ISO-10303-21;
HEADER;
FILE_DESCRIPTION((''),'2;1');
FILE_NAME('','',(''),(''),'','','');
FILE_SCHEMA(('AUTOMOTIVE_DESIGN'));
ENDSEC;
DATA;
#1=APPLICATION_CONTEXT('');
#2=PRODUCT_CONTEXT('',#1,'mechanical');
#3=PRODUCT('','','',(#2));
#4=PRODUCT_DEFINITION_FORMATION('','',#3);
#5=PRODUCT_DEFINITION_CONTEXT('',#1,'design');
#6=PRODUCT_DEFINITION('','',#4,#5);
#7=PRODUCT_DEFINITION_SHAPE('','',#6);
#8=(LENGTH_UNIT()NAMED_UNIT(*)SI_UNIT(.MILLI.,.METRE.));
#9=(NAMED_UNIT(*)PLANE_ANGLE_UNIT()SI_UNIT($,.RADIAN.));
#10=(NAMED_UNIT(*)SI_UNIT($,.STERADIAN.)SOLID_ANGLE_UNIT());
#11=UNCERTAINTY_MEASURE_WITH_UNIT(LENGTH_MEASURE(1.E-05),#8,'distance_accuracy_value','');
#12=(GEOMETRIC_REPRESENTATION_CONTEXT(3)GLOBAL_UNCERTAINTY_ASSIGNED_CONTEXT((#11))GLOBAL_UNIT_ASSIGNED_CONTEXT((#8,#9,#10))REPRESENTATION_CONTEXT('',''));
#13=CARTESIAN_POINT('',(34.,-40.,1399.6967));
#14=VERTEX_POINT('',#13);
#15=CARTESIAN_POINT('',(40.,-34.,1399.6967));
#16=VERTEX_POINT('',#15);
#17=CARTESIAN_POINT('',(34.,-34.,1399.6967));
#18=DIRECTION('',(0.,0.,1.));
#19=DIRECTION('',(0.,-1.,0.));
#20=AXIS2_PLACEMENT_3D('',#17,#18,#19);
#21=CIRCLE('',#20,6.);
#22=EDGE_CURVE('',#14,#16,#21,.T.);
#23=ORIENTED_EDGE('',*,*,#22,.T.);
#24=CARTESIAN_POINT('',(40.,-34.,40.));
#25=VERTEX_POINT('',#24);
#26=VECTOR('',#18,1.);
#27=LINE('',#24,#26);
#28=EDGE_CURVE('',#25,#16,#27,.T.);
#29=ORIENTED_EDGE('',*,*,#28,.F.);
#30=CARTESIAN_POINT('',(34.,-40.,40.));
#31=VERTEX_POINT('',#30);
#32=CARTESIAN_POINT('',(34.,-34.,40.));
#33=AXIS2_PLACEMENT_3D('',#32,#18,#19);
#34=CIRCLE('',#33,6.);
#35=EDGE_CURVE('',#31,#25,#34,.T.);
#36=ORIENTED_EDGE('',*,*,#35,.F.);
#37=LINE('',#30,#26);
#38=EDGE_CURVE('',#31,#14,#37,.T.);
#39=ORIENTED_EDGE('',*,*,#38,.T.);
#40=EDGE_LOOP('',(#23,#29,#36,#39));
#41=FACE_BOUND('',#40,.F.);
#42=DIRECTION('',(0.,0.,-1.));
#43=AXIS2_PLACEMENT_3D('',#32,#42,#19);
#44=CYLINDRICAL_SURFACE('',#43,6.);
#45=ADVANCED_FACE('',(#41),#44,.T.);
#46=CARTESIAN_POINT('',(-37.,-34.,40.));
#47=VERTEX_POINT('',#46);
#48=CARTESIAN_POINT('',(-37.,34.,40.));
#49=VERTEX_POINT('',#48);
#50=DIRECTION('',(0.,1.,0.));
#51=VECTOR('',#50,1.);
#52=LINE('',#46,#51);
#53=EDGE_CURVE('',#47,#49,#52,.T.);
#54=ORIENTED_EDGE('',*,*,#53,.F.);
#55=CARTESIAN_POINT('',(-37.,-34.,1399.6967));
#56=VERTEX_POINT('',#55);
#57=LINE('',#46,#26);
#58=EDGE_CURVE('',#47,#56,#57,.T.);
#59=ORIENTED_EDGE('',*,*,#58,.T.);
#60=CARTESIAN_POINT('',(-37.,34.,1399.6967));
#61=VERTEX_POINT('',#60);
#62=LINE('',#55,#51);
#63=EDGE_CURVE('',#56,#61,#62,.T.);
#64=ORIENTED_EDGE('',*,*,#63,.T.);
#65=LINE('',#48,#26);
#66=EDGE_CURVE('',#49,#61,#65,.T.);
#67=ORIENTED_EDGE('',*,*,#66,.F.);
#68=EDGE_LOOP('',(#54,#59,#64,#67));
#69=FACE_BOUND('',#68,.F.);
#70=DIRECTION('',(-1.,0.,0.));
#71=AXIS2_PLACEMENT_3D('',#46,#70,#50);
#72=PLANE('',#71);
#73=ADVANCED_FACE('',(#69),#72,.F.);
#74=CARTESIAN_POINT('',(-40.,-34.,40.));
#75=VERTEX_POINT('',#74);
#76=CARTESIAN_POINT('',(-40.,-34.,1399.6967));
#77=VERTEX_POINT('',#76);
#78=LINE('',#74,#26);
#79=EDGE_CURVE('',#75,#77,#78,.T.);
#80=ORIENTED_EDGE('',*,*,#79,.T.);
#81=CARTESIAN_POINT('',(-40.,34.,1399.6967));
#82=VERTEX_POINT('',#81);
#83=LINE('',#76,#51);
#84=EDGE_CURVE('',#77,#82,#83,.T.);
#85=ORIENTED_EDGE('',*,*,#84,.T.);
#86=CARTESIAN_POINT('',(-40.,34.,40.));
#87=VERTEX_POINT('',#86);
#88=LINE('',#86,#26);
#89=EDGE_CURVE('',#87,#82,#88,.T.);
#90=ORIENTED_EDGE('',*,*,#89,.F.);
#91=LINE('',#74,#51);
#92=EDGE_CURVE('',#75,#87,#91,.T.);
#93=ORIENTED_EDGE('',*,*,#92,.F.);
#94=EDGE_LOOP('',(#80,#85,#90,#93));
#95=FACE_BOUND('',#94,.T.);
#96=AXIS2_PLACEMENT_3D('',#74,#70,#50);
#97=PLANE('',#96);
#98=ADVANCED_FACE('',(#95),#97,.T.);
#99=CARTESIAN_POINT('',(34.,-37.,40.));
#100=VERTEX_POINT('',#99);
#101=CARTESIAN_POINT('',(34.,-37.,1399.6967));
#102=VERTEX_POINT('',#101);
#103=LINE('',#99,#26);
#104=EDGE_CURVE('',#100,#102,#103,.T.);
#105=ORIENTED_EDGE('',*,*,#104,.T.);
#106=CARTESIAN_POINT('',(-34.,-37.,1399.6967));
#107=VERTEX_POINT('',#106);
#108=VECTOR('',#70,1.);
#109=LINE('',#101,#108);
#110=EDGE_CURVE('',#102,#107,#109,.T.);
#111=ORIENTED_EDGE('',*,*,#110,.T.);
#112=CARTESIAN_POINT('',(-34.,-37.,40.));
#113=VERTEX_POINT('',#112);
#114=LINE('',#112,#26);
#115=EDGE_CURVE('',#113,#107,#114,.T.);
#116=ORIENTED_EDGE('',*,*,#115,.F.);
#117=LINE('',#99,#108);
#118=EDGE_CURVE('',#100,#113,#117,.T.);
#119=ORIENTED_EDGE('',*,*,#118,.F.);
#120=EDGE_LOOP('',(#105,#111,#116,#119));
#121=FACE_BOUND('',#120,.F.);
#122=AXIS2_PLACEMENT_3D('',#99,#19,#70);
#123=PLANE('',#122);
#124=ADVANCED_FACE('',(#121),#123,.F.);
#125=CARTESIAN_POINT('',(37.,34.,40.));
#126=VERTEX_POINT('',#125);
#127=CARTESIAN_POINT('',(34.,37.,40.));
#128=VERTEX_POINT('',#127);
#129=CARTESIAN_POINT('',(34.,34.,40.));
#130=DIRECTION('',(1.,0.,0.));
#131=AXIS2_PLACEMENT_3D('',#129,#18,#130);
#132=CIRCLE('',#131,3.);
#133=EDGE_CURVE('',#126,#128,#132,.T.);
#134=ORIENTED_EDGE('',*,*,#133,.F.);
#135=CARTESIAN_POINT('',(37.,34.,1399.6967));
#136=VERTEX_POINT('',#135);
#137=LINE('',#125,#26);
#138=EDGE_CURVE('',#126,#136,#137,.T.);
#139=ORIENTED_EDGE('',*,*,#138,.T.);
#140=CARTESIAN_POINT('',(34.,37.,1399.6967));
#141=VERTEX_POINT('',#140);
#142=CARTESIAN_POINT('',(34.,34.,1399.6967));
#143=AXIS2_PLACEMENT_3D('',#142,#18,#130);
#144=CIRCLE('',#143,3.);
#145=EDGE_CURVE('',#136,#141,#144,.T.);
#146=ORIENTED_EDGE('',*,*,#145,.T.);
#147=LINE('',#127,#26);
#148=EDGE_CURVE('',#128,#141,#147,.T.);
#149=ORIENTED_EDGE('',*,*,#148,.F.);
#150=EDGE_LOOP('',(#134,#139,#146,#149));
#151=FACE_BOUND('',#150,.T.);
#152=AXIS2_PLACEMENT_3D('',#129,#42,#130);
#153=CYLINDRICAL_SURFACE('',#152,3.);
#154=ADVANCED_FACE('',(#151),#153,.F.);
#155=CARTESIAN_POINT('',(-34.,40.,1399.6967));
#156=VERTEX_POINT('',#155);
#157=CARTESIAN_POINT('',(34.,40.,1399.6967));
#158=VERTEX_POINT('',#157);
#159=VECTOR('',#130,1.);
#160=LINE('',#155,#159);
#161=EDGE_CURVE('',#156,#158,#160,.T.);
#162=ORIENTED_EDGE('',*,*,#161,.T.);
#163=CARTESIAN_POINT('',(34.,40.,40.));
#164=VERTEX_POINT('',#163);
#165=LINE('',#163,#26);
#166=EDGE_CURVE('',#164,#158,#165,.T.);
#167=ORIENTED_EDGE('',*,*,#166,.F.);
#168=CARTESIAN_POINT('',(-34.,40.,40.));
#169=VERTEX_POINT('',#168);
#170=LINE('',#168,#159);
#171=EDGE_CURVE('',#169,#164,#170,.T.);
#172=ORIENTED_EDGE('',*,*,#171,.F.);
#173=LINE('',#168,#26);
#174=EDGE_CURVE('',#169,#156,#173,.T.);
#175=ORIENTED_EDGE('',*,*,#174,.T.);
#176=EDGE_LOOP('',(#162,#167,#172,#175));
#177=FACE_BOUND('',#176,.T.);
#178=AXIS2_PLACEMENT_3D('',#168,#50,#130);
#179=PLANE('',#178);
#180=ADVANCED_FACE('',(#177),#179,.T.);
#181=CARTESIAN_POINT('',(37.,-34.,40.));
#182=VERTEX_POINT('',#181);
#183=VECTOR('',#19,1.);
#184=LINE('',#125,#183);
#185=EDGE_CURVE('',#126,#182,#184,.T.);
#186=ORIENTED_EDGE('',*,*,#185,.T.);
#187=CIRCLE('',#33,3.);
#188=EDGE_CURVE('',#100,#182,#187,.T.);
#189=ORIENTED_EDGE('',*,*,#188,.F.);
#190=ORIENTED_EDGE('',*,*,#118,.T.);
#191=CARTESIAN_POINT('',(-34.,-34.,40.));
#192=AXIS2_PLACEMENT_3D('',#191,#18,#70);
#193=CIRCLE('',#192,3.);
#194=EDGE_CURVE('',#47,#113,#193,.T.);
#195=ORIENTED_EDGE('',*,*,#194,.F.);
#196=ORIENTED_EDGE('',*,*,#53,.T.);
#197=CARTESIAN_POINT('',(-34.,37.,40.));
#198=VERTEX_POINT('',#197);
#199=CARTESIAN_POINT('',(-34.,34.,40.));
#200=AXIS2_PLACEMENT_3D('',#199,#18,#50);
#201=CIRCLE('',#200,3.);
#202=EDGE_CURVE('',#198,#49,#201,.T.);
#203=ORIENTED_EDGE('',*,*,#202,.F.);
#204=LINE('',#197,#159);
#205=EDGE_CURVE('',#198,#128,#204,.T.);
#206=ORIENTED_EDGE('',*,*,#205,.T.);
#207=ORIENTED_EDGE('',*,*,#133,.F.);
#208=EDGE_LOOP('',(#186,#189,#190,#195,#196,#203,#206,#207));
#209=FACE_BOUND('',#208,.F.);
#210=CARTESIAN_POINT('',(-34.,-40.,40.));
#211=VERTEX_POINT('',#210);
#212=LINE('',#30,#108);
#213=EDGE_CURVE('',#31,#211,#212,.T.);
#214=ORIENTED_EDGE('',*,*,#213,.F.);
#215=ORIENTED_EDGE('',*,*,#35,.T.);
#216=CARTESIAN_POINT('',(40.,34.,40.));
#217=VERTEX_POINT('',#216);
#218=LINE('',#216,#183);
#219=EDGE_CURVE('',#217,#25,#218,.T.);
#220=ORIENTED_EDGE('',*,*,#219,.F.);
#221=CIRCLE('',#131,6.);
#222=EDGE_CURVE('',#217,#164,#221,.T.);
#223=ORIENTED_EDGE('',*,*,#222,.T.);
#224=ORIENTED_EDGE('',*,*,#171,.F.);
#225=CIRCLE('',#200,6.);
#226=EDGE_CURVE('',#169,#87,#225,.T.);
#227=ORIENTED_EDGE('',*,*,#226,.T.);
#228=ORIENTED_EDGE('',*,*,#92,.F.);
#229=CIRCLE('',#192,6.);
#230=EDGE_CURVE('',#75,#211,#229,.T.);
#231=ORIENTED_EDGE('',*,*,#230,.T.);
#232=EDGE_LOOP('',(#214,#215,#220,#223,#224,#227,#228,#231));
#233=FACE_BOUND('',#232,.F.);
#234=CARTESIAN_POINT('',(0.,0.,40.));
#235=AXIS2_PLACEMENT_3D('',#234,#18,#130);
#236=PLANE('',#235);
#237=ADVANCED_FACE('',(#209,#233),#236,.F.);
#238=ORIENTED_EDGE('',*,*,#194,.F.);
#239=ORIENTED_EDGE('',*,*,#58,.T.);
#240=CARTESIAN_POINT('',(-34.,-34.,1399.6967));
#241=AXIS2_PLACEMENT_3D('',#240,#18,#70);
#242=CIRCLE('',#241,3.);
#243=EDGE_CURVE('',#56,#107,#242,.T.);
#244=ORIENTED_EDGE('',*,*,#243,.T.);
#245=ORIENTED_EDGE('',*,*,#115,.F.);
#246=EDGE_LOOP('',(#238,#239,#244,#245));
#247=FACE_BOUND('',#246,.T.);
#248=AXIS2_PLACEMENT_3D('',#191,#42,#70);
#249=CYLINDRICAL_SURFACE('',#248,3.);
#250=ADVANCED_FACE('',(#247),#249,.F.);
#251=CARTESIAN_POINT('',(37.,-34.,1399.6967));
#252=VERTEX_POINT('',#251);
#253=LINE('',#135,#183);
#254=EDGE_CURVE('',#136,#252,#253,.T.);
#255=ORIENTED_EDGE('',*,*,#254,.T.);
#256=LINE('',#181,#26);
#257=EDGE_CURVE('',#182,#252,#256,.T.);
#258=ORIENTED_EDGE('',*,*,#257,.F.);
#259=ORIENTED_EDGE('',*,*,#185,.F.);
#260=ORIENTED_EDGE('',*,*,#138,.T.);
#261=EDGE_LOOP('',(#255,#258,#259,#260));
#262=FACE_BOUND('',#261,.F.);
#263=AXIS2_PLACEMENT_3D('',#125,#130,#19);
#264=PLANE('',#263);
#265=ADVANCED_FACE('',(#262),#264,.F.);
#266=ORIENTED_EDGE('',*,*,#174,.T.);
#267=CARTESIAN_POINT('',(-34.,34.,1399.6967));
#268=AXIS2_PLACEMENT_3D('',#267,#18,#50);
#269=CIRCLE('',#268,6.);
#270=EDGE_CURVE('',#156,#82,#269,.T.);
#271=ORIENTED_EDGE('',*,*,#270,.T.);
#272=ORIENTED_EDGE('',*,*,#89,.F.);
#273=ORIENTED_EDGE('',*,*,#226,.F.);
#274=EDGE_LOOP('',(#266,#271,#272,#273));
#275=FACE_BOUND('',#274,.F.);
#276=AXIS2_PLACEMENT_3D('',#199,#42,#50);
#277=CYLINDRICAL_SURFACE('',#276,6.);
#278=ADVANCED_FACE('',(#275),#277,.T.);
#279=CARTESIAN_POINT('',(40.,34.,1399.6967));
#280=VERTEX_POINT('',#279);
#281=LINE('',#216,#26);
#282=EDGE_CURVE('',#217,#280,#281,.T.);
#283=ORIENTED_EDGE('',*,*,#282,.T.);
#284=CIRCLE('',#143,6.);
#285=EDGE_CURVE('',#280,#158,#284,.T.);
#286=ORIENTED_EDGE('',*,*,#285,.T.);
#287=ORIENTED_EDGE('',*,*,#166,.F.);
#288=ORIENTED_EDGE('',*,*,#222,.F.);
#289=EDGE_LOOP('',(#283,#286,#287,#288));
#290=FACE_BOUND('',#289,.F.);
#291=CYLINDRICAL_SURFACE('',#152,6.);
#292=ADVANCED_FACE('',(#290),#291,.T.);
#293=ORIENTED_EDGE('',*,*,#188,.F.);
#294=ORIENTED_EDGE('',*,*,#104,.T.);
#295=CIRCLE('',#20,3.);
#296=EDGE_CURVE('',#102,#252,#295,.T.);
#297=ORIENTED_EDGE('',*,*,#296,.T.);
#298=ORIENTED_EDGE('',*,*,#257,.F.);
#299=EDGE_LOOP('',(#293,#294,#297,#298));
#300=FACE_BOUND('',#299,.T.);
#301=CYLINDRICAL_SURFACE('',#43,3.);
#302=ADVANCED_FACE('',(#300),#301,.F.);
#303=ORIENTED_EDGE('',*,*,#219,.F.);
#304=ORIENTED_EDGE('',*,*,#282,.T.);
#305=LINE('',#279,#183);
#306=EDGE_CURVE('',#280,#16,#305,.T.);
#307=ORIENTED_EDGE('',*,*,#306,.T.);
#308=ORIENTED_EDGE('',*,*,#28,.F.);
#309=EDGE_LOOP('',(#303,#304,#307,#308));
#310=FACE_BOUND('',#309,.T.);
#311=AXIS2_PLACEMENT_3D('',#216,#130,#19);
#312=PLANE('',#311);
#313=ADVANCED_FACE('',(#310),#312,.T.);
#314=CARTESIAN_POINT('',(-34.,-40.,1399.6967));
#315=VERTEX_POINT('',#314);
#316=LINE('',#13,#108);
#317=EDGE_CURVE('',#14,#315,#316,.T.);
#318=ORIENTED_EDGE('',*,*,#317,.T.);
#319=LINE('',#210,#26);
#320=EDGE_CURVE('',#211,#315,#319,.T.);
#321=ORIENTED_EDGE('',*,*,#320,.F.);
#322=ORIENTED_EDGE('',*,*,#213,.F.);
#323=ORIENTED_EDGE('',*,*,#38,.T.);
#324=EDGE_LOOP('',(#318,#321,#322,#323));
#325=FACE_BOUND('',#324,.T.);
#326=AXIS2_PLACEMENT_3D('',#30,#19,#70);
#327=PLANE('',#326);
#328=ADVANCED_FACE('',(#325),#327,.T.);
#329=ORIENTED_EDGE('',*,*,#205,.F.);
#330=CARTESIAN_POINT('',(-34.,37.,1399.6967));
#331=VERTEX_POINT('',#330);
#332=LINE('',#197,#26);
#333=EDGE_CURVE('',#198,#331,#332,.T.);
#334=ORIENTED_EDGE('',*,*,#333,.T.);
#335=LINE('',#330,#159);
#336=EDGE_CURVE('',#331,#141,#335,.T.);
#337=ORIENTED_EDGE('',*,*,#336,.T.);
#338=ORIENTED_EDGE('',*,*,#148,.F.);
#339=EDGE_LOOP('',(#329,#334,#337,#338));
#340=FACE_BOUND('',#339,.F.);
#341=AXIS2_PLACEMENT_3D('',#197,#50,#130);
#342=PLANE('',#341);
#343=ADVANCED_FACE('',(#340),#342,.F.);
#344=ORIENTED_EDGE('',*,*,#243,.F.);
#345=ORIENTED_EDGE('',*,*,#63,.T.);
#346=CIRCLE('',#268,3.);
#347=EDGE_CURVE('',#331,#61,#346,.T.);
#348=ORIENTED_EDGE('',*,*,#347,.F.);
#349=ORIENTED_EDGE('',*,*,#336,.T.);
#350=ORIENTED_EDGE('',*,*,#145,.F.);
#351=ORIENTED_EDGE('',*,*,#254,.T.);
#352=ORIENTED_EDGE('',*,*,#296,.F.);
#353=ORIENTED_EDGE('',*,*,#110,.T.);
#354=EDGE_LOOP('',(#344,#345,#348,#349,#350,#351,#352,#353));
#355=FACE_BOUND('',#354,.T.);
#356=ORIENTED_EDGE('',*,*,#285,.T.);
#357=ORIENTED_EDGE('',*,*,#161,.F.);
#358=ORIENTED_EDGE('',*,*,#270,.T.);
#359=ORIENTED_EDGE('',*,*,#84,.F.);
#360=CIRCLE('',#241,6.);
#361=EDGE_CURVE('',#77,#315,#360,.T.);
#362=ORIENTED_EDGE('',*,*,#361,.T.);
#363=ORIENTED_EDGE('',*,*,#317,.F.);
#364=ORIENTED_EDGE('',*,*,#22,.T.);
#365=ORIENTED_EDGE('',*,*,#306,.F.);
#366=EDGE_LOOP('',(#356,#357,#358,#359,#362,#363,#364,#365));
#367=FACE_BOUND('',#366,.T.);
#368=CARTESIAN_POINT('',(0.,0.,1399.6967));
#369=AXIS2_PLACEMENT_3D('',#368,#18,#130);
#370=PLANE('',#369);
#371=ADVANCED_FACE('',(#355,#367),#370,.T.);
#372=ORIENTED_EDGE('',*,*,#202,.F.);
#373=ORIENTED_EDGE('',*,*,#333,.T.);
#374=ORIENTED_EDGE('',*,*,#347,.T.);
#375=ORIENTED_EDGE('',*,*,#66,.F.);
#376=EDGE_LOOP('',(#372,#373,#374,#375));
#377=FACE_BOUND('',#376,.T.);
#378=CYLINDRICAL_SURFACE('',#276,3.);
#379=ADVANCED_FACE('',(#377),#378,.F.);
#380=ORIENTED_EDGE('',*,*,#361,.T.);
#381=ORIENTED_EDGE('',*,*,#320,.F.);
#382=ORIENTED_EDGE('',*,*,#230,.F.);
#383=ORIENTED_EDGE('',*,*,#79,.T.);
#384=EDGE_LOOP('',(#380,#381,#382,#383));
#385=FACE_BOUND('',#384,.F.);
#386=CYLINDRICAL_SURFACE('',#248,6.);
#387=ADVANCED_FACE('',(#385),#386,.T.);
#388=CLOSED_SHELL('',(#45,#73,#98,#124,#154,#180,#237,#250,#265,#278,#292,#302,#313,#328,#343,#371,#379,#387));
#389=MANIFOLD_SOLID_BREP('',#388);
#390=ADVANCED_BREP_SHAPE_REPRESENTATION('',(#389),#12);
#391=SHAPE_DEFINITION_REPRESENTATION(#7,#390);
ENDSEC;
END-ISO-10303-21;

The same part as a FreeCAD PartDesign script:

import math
import FreeCAD as App
import Part
import Sketcher
from FreeCAD import Vector

doc = App.newDocument("Part")
body = doc.addObject("PartDesign::Body", "Body")

# Sketch on XY plane
sketch1 = body.newObject("Sketcher::SketchObject", "Sketch")
sketch1.AttachmentSupport = (doc.getObject("XY_Plane"), [""])
sketch1.MapMode = "FlatFace"
sketch1.AttachmentOffset = App.Placement(Vector(0, 0, 40), App.Rotation())
sketch1.addGeometry([
    Part.LineSegment(Vector(-40, 34, 0), Vector(-40, -34, 0)),  # 0
    Part.ArcOfCircle(Part.Circle(Vector(-34, -34, 0), Vector(0, 0, 1), 6), math.radians(180), math.radians(270)),  # 1
    Part.LineSegment(Vector(-34, -40, 0), Vector(34, -40, 0)),  # 2
    Part.ArcOfCircle(Part.Circle(Vector(34, -34, 0), Vector(0, 0, 1), 6), math.radians(-90), math.radians(0)),  # 3
    Part.LineSegment(Vector(40, -34, 0), Vector(40, 34, 0)),  # 4
    Part.ArcOfCircle(Part.Circle(Vector(34, 34, 0), Vector(0, 0, 1), 6), math.radians(0), math.radians(90)),  # 5
    Part.LineSegment(Vector(34, 40, 0), Vector(-34, 40, 0)),  # 6
    Part.ArcOfCircle(Part.Circle(Vector(-34, 34, 0), Vector(0, 0, 1), 6), math.radians(90), math.radians(180)),  # 7
    Part.ArcOfCircle(Part.Circle(Vector(-34, 34, 0), Vector(0, 0, 1), 3), math.radians(90), math.radians(180)),  # 8
    Part.LineSegment(Vector(-34, 37, 0), Vector(34, 37, 0)),  # 9
    Part.ArcOfCircle(Part.Circle(Vector(34, 34, 0), Vector(0, 0, 1), 3), math.radians(0), math.radians(90)),  # 10
    Part.LineSegment(Vector(37, 34, 0), Vector(37, -34, 0)),  # 11
    Part.ArcOfCircle(Part.Circle(Vector(34, -34, 0), Vector(0, 0, 1), 3), math.radians(-90), math.radians(0)),  # 12
    Part.LineSegment(Vector(34, -37, 0), Vector(-34, -37, 0)),  # 13
    Part.ArcOfCircle(Part.Circle(Vector(-34, -34, 0), Vector(0, 0, 1), 3), math.radians(180), math.radians(270)),  # 14
    Part.LineSegment(Vector(-37, -34, 0), Vector(-37, 34, 0)),  # 15
], False)
sketch1.addConstraint([
    Sketcher.Constraint("Tangent", 0, 2, 1, 1),
    Sketcher.Constraint("Tangent", 1, 2, 2, 1),
    Sketcher.Constraint("Tangent", 2, 2, 3, 1),
    Sketcher.Constraint("Tangent", 3, 2, 4, 1),
    Sketcher.Constraint("Tangent", 4, 2, 5, 1),
    Sketcher.Constraint("Tangent", 5, 2, 6, 1),
    Sketcher.Constraint("Tangent", 6, 2, 7, 1),
    Sketcher.Constraint("Tangent", 7, 2, 0, 1),
    Sketcher.Constraint("Tangent", 8, 1, 9, 1),
    Sketcher.Constraint("Tangent", 9, 2, 10, 2),
    Sketcher.Constraint("Tangent", 10, 1, 11, 1),
    Sketcher.Constraint("Tangent", 11, 2, 12, 2),
    Sketcher.Constraint("Tangent", 12, 1, 13, 1),
    Sketcher.Constraint("Tangent", 13, 2, 14, 2),
    Sketcher.Constraint("Tangent", 14, 1, 15, 1),
    Sketcher.Constraint("Tangent", 15, 2, 8, 2),
    Sketcher.Constraint("Vertical", 0),
    Sketcher.Constraint("Horizontal", 2),
    Sketcher.Constraint("Vertical", 4),
    Sketcher.Constraint("Horizontal", 6),
    Sketcher.Constraint("Horizontal", 9),
    Sketcher.Constraint("Vertical", 11),
    Sketcher.Constraint("Horizontal", 13),
    Sketcher.Constraint("Vertical", 15),
    Sketcher.Constraint("Coincident", 8, 3, 7, 3),
    Sketcher.Constraint("Coincident", 10, 3, 5, 3),
    Sketcher.Constraint("Coincident", 12, 3, 3, 3),
    Sketcher.Constraint("Equal", 1, 3),
    Sketcher.Constraint("Equal", 3, 5),
    Sketcher.Constraint("Equal", 5, 7),
    Sketcher.Constraint("Equal", 12, 14),
    Sketcher.Constraint("Symmetric", 1, 3, 5, 3, -1, 1),
    Sketcher.Constraint("Equal", 13, 0),
    Sketcher.Constraint("Radius", 1, 6.0),
    Sketcher.Constraint("Radius", 8, 3.0),
    Sketcher.Constraint("DistanceX", 0, 2, -1, 1, 40.0),
])
pad1 = body.newObject("PartDesign::Pad", "Pad")
pad1.Profile = sketch1
pad1.Length = 1359.6967

doc.recompute()
